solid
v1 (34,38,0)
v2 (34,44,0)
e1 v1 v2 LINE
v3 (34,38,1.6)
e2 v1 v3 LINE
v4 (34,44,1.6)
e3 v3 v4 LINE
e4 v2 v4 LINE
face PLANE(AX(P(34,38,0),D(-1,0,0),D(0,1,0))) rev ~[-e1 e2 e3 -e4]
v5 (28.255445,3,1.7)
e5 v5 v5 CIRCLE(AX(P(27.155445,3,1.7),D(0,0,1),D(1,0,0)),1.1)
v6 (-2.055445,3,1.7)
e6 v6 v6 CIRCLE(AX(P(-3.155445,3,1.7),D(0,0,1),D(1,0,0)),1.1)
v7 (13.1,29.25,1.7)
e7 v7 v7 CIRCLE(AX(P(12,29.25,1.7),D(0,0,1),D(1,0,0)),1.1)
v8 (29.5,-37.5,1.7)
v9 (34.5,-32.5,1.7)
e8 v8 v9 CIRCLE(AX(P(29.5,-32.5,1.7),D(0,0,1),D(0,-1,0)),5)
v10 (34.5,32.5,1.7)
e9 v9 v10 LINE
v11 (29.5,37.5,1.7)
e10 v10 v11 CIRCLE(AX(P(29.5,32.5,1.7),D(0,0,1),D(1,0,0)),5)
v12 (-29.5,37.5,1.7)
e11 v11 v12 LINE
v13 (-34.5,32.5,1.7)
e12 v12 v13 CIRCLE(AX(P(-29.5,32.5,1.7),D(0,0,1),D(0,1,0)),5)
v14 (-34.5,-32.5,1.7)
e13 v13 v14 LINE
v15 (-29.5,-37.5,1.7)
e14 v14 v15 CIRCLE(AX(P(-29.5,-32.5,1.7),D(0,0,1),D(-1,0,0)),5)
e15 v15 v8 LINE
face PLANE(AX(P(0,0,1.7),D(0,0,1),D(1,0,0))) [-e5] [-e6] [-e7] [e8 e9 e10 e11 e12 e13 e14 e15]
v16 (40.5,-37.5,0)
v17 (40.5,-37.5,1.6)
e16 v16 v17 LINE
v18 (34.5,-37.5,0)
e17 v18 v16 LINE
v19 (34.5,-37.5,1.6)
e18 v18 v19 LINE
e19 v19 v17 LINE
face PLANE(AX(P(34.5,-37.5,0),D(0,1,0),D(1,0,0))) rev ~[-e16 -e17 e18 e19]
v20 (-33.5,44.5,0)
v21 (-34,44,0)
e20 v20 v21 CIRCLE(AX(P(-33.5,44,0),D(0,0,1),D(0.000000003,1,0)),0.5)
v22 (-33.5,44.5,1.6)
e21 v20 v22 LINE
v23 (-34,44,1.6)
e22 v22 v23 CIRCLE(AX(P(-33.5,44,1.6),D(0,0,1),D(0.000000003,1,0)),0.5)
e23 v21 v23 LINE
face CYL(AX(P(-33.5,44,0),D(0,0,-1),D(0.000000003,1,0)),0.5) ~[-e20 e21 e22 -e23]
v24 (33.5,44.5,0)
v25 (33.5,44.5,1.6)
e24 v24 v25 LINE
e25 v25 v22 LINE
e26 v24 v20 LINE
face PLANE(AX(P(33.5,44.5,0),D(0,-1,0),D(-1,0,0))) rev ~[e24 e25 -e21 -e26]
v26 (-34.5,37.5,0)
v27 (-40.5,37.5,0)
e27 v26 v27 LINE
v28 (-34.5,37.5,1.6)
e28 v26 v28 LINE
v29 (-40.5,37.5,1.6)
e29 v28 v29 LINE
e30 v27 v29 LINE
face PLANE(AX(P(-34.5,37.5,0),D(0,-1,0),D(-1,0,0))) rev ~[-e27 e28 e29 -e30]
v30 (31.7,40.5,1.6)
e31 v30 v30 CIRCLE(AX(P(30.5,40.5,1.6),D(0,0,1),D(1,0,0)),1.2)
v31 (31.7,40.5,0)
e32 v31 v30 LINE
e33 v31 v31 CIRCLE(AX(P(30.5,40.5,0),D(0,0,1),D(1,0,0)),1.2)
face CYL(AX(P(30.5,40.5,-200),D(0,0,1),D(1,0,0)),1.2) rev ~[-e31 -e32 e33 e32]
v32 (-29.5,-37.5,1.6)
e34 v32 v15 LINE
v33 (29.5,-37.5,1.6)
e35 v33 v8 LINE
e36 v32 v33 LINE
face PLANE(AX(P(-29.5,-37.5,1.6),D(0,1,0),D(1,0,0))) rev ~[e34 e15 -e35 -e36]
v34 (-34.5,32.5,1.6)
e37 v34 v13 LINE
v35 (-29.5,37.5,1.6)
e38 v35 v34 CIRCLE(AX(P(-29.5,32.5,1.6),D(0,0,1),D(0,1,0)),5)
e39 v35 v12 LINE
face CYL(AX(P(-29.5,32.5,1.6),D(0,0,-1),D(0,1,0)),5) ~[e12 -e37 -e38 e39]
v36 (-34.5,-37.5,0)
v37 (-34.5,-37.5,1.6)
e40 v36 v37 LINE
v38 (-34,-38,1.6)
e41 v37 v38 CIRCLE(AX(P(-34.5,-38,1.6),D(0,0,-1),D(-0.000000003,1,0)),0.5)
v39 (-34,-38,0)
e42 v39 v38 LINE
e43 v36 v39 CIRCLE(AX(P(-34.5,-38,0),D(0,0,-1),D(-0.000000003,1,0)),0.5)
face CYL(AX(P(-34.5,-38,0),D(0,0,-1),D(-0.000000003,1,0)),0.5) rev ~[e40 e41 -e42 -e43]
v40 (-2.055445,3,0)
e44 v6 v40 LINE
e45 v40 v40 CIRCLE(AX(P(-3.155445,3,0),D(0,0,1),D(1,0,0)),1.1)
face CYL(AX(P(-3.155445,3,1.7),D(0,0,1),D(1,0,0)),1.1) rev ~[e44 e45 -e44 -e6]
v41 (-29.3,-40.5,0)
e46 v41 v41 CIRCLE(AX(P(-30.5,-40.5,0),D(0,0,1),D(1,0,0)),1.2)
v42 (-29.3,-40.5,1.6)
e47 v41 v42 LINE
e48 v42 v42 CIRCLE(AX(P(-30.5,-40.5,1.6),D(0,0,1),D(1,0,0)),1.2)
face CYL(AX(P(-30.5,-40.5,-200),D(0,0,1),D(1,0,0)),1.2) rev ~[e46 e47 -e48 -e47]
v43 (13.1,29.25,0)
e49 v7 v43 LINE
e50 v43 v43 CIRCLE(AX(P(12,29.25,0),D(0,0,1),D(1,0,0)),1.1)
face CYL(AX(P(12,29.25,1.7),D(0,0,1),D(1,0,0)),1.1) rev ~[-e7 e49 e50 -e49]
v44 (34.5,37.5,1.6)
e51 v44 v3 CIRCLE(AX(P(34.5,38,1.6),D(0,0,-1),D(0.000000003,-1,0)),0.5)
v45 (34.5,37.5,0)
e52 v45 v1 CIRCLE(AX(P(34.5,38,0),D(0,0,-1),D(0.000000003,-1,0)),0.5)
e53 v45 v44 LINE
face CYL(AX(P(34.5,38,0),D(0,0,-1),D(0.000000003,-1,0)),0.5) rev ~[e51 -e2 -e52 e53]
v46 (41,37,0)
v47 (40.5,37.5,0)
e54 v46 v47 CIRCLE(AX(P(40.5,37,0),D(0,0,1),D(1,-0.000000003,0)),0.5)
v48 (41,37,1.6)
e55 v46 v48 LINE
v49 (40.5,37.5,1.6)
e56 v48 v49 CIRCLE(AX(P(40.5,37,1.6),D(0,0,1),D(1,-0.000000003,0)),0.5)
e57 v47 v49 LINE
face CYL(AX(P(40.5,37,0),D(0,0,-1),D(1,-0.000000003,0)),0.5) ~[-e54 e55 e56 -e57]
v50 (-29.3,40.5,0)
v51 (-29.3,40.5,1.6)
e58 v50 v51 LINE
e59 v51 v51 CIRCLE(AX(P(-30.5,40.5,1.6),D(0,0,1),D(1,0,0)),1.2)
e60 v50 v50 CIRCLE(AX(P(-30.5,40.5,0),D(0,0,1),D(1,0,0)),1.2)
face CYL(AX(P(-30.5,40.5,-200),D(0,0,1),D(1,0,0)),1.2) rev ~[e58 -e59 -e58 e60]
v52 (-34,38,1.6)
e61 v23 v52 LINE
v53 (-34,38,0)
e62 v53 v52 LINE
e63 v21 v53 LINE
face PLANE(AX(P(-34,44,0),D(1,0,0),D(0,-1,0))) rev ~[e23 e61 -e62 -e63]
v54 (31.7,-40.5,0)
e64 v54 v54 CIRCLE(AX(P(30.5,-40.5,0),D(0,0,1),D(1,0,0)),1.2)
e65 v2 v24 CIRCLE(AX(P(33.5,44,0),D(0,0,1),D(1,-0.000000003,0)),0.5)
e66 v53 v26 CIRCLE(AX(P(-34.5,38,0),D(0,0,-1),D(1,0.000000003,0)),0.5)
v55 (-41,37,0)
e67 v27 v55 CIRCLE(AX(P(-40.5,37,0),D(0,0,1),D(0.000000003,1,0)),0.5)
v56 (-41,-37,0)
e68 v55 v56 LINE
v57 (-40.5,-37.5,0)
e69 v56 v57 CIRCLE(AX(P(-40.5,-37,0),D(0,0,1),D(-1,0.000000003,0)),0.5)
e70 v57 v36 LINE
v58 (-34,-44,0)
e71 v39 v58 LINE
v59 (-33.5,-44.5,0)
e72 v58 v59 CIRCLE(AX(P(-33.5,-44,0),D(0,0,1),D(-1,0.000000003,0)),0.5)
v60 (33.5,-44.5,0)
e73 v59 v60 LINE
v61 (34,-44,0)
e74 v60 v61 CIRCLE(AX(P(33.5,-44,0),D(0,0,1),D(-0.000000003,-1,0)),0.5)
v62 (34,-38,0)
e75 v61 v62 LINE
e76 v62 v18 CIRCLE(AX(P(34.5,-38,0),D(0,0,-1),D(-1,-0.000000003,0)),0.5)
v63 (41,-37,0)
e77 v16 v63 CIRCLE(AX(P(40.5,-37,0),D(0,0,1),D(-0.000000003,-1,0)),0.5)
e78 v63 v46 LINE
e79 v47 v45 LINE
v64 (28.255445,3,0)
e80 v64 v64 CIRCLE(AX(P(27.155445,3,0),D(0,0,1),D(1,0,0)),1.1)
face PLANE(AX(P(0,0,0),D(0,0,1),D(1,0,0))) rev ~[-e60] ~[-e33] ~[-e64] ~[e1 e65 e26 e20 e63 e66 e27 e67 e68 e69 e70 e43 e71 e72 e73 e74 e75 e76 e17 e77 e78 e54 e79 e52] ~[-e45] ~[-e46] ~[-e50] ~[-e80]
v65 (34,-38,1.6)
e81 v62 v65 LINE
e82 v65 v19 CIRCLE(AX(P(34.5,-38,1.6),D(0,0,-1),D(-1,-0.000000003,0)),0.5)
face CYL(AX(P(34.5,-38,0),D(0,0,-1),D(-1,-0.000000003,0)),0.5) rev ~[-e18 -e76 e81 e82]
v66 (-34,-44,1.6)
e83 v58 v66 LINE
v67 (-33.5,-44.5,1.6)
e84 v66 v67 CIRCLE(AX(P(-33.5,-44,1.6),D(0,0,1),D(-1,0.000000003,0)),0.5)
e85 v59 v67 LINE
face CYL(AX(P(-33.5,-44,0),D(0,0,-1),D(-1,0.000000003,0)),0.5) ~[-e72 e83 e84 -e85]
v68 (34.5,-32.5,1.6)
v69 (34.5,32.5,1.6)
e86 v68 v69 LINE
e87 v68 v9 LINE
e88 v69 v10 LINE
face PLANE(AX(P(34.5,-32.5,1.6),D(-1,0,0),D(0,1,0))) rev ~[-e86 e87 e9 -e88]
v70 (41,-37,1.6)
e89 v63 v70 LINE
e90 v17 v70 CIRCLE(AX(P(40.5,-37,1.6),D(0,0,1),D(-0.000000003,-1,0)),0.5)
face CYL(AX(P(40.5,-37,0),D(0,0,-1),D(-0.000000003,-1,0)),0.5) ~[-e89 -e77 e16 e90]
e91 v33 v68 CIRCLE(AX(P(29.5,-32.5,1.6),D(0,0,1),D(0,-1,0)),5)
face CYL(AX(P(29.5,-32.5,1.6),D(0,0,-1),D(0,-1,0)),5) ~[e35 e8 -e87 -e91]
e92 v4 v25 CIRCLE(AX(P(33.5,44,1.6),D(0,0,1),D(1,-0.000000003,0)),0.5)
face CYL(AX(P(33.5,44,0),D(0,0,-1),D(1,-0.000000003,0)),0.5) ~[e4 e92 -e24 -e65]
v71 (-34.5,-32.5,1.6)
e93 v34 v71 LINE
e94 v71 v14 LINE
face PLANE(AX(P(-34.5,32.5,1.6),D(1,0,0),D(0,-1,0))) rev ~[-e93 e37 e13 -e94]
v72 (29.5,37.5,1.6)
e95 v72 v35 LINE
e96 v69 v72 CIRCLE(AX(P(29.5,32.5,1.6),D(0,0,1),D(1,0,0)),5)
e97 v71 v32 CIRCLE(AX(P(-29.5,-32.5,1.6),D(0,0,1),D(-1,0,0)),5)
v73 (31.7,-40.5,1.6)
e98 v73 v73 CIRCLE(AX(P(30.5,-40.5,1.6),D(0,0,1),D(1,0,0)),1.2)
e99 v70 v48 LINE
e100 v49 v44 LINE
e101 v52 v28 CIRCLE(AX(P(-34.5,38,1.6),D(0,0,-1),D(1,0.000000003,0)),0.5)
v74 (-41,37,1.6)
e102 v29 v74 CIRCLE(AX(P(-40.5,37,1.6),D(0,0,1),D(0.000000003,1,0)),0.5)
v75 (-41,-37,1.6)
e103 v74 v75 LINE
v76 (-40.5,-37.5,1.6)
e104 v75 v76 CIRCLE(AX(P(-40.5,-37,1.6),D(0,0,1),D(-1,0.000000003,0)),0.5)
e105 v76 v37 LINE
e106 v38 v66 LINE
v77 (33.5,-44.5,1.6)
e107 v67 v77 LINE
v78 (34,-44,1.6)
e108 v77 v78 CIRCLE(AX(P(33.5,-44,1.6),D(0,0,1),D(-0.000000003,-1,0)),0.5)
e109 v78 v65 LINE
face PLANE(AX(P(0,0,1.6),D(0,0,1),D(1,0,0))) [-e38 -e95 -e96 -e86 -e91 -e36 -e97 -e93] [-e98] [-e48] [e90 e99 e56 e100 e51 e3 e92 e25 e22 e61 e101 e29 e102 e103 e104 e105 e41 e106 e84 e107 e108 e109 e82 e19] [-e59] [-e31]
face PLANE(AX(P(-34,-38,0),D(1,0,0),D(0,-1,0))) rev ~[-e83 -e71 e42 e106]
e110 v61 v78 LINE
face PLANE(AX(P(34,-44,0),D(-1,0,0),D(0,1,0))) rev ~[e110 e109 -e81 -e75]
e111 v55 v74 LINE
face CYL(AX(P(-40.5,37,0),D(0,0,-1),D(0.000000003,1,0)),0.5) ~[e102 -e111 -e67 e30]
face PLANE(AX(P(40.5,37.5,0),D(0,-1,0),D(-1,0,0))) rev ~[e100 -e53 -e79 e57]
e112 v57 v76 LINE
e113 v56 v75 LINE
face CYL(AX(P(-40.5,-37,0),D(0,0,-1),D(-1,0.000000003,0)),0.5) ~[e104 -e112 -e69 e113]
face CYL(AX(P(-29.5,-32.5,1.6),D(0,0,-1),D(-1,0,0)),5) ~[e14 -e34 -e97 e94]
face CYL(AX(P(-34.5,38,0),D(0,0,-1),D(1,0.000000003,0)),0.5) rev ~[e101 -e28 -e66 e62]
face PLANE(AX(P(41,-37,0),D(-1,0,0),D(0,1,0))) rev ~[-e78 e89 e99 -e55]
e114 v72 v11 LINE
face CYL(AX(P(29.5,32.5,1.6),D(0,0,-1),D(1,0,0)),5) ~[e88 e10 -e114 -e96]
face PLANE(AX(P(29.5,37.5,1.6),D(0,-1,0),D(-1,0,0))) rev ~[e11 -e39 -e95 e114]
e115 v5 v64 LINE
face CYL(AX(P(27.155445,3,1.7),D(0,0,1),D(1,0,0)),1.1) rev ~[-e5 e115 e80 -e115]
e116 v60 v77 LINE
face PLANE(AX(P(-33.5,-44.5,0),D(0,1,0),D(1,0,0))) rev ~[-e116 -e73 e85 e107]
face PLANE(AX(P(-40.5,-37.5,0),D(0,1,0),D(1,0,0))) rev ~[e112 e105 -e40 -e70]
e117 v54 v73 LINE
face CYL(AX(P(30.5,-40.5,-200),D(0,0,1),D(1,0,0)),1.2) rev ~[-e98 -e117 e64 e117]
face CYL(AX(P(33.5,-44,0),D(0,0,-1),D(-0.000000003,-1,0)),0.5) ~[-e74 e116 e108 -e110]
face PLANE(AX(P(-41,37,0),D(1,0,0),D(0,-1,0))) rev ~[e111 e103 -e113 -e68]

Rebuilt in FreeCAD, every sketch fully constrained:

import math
import FreeCAD as App
import Part
import Sketcher
Q = App.Units.Quantity

doc = App.newDocument("Part")
params = doc.addObject("Spreadsheet::Sheet", "Params")
for row, (alias, value) in enumerate([
    ("sketch1_radius", "0.5 mm"),
    ("sketch1_width", "6 mm"),
    ("sketch1_width2", "67 mm"),
    ("sketch1_height", "74 mm"),
    ("pad1_length", "1.6 mm"),
    ("sketch2_radius", "5 mm"),
    ("sketch2_width", "59 mm"),
    ("sketch2_height", "65 mm"),
    ("pad2_length", "0.1 mm"),
    ("sketch3_diameter", "2.4 mm"),
    ("hole_diameter", "2.4 mm"),
    ("hole_depth", "200 mm"),
    ("sketch4_diameter", "2.2 mm"),
    ("pocket1_length", "1.7 mm"),
], start=1):
    params.set(f"A{row}", alias)
    params.set(f"B{row}", "=" + value)
    params.setAlias(f"B{row}", alias)

body = doc.addObject("PartDesign::Body", "Body")

# Sketch on XY plane
sketch1 = body.newObject("Sketcher::SketchObject", "Sketch")
sketch1.AttachmentSupport = (doc.getObject("XY_Plane"), [""])
sketch1.MapMode = "FlatFace"
sketch1.addGeometry([
    Part.LineSegment(App.Vector(-34, 44, 0), App.Vector(-34, 38, 0)),  # 0
    Part.ArcOfCircle(Part.Circle(App.Vector(-34.5, 38, 0), App.Vector(0, 0, 1), 0.5), math.radians(-90), math.radians(0)),  # 1
    Part.LineSegment(App.Vector(-34.5, 37.5, 0), App.Vector(-40.5, 37.5, 0)),  # 2
    Part.ArcOfCircle(Part.Circle(App.Vector(-40.5, 37, 0), App.Vector(0, 0, 1), 0.5), math.radians(90), math.radians(180)),  # 3
    Part.LineSegment(App.Vector(-41, 37, 0), App.Vector(-41, -37, 0)),  # 4
    Part.ArcOfCircle(Part.Circle(App.Vector(-40.5, -37, 0), App.Vector(0, 0, 1), 0.5), math.radians(180), math.radians(270)),  # 5
    Part.LineSegment(App.Vector(-40.5, -37.5, 0), App.Vector(-34.5, -37.5, 0)),  # 6
    Part.ArcOfCircle(Part.Circle(App.Vector(-34.5, -38, 0), App.Vector(0, 0, 1), 0.5), math.radians(0), math.radians(90)),  # 7
    Part.LineSegment(App.Vector(-34, -38, 0), App.Vector(-34, -44, 0)),  # 8
    Part.ArcOfCircle(Part.Circle(App.Vector(-33.5, -44, 0), App.Vector(0, 0, 1), 0.5), math.radians(180), math.radians(270)),  # 9
    Part.LineSegment(App.Vector(-33.5, -44.5, 0), App.Vector(33.5, -44.5, 0)),  # 10
    Part.ArcOfCircle(Part.Circle(App.Vector(33.5, -44, 0), App.Vector(0, 0, 1), 0.5), math.radians(-90), math.radians(0)),  # 11
    Part.LineSegment(App.Vector(34, -44, 0), App.Vector(34, -38, 0)),  # 12
    Part.ArcOfCircle(Part.Circle(App.Vector(34.5, -38, 0), App.Vector(0, 0, 1), 0.5), math.radians(90), math.radians(180)),  # 13
    Part.LineSegment(App.Vector(34.5, -37.5, 0), App.Vector(40.5, -37.5, 0)),  # 14
    Part.ArcOfCircle(Part.Circle(App.Vector(40.5, -37, 0), App.Vector(0, 0, 1), 0.5), math.radians(-90), math.radians(0)),  # 15
    Part.LineSegment(App.Vector(41, -37, 0), App.Vector(41, 37, 0)),  # 16
    Part.ArcOfCircle(Part.Circle(App.Vector(40.5, 37, 0), App.Vector(0, 0, 1), 0.5), math.radians(0), math.radians(90)),  # 17
    Part.LineSegment(App.Vector(40.5, 37.5, 0), App.Vector(34.5, 37.5, 0)),  # 18
    Part.ArcOfCircle(Part.Circle(App.Vector(34.5, 38, 0), App.Vector(0, 0, 1), 0.5), math.radians(180), math.radians(270)),  # 19
    Part.LineSegment(App.Vector(34, 38, 0), App.Vector(34, 44, 0)),  # 20
    Part.ArcOfCircle(Part.Circle(App.Vector(33.5, 44, 0), App.Vector(0, 0, 1), 0.5), math.radians(0), math.radians(90)),  # 21
    Part.LineSegment(App.Vector(33.5, 44.5, 0), App.Vector(-33.5, 44.5, 0)),  # 22
    Part.ArcOfCircle(Part.Circle(App.Vector(-33.5, 44, 0), App.Vector(0, 0, 1), 0.5), math.radians(90), math.radians(180)),  # 23
], False)
sketch1.addConstraint([
    Sketcher.Constraint("Tangent", 0, 2, 1, 2),
    Sketcher.Constraint("Tangent", 1, 1, 2, 1),
    Sketcher.Constraint("Tangent", 2, 2, 3, 1),
    Sketcher.Constraint("Tangent", 3, 2, 4, 1),
    Sketcher.Constraint("Tangent", 4, 2, 5, 1),
    Sketcher.Constraint("Tangent", 5, 2, 6, 1),
    Sketcher.Constraint("Tangent", 6, 2, 7, 2),
    Sketcher.Constraint("Tangent", 7, 1, 8, 1),
    Sketcher.Constraint("Tangent", 8, 2, 9, 1),
    Sketcher.Constraint("Tangent", 9, 2, 10, 1),
    Sketcher.Constraint("Tangent", 10, 2, 11, 1),
    Sketcher.Constraint("Tangent", 11, 2, 12, 1),
    Sketcher.Constraint("Tangent", 12, 2, 13, 2),
    Sketcher.Constraint("Tangent", 13, 1, 14, 1),
    Sketcher.Constraint("Tangent", 14, 2, 15, 1),
    Sketcher.Constraint("Tangent", 15, 2, 16, 1),
    Sketcher.Constraint("Tangent", 16, 2, 17, 1),
    Sketcher.Constraint("Tangent", 17, 2, 18, 1),
    Sketcher.Constraint("Tangent", 18, 2, 19, 2),
    Sketcher.Constraint("Tangent", 19, 1, 20, 1),
    Sketcher.Constraint("Tangent", 20, 2, 21, 1),
    Sketcher.Constraint("Tangent", 21, 2, 22, 1),
    Sketcher.Constraint("Tangent", 22, 2, 23, 1),
    Sketcher.Constraint("Tangent", 23, 2, 0, 1),
    Sketcher.Constraint("Vertical", 0),
    Sketcher.Constraint("Horizontal", 2),
    Sketcher.Constraint("Vertical", 4),
    Sketcher.Constraint("Horizontal", 6),
    Sketcher.Constraint("Vertical", 8),
    Sketcher.Constraint("Horizontal", 10),
    Sketcher.Constraint("Vertical", 12),
    Sketcher.Constraint("Horizontal", 14),
    Sketcher.Constraint("Vertical", 16),
    Sketcher.Constraint("Horizontal", 18),
    Sketcher.Constraint("Vertical", 20),
    Sketcher.Constraint("Horizontal", 22),
    Sketcher.Constraint("Equal", 1, 3),
    Sketcher.Constraint("Equal", 3, 5),
    Sketcher.Constraint("Equal", 5, 7),
    Sketcher.Constraint("Equal", 7, 9),
    Sketcher.Constraint("Equal", 9, 11),
    Sketcher.Constraint("Equal", 11, 13),
    Sketcher.Constraint("Equal", 13, 15),
    Sketcher.Constraint("Equal", 15, 17),
    Sketcher.Constraint("Equal", 17, 19),
    Sketcher.Constraint("Equal", 19, 21),
    Sketcher.Constraint("Equal", 21, 23),
    Sketcher.Constraint("Symmetric", 1, 3, 13, 3, -1, 1),
    Sketcher.Constraint("Symmetric", 5, 3, 17, 3, -1, 1),
    Sketcher.Constraint("Symmetric", 9, 3, 21, 3, -1, 1),
    Sketcher.Constraint("Symmetric", 7, 3, 13, 3, -2),
    Sketcher.Constraint("Equal", 18, 0),
    Sketcher.Constraint("Radius", 1, Q("0.5 mm")),
    Sketcher.Constraint("DistanceX", 2, 2, 2, 1, Q("6 mm")),
    Sketcher.Constraint("DistanceX", 10, 1, 10, 2, Q("67 mm")),
    Sketcher.Constraint("DistanceY", 4, 2, 4, 1, Q("74 mm")),
])
sketch1.setExpression("Constraints[52]", "Params.sketch1_radius")
sketch1.setExpression("Constraints[53]", "Params.sketch1_width")
sketch1.setExpression("Constraints[54]", "Params.sketch1_width2")
sketch1.setExpression("Constraints[55]", "Params.sketch1_height")
pad1 = body.newObject("PartDesign::Pad", "Pad")
pad1.Profile = sketch1
pad1.setExpression("Length", "Params.pad1_length")

# Sketch on XY plane
sketch2 = body.newObject("Sketcher::SketchObject", "Sketch001")
sketch2.AttachmentSupport = (doc.getObject("XY_Plane"), [""])
sketch2.MapMode = "FlatFace"
sketch2.AttachmentOffset = App.Placement(App.Vector(0, 0, 1.6), App.Rotation())
sketch2.addGeometry([
    Part.LineSegment(App.Vector(-30, -38, 0), App.Vector(30, -38, 0)),  # 0
    Part.ArcOfCircle(Part.Circle(App.Vector(30, -32, 0), App.Vector(0, 0, 1), 5), math.radians(-90), math.radians(0)),  # 1
    Part.LineSegment(App.Vector(34, -32, 0), App.Vector(34, 32, 0)),  # 2
    Part.ArcOfCircle(Part.Circle(App.Vector(30, 32, 0), App.Vector(0, 0, 1), 5), math.radians(0), math.radians(90)),  # 3
    Part.LineSegment(App.Vector(30, 38, 0), App.Vector(-30, 38, 0)),  # 4
    Part.ArcOfCircle(Part.Circle(App.Vector(-30, 32, 0), App.Vector(0, 0, 1), 5), math.radians(90), math.radians(180)),  # 5
    Part.LineSegment(App.Vector(-34, 32, 0), App.Vector(-34, -32, 0)),  # 6
    Part.ArcOfCircle(Part.Circle(App.Vector(-30, -32, 0), App.Vector(0, 0, 1), 5), math.radians(180), math.radians(270)),  # 7
], False)
sketch2.addConstraint([
    Sketcher.Constraint("Tangent", 0, 2, 1, 1),
    Sketcher.Constraint("Tangent", 1, 2, 2, 1),
    Sketcher.Constraint("Tangent", 2, 2, 3, 1),
    Sketcher.Constraint("Tangent", 3, 2, 4, 1),
    Sketcher.Constraint("Tangent", 4, 2, 5, 1),
    Sketcher.Constraint("Tangent", 5, 2, 6, 1),
    Sketcher.Constraint("Tangent", 6, 2, 7, 1),
    Sketcher.Constraint("Tangent", 7, 2, 0, 1),
    Sketcher.Constraint("Horizontal", 0),
    Sketcher.Constraint("Vertical", 2),
    Sketcher.Constraint("Horizontal", 4),
    Sketcher.Constraint("Vertical", 6),
    Sketcher.Constraint("Equal", 1, 3),
    Sketcher.Constraint("Equal", 3, 5),
    Sketcher.Constraint("Equal", 5, 7),
    Sketcher.Constraint("Symmetric", 1, 3, 5, 3, -1, 1),
    Sketcher.Constraint("Radius", 1, Q("5 mm")),
    Sketcher.Constraint("DistanceX", 0, 1, 0, 2, Q("59 mm")),
    Sketcher.Constraint("DistanceY", 2, 1, 2, 2, Q("65 mm")),
])
sketch2.setExpression("Constraints[16]", "Params.sketch2_radius")
sketch2.setExpression("Constraints[17]", "Params.sketch2_width")
sketch2.setExpression("Constraints[18]", "Params.sketch2_height")
pad2 = body.newObject("PartDesign::Pad", "Pad001")
pad2.Profile = sketch2
pad2.setExpression("Length", "Params.pad2_length")

# Sketch on XY plane
sketch3 = body.newObject("Sketcher::SketchObject", "Sketch002")
sketch3.AttachmentSupport = (doc.getObject("XY_Plane"), [""])
sketch3.MapMode = "FlatFace"
sketch3.addGeometry([
    Part.Circle(App.Vector(30.5, 40.5, 0), App.Vector(0, 0, 1), 1.2),
    Part.Circle(App.Vector(-30.5, 40.5, 0), App.Vector(0, 0, 1), 1.2),
    Part.Circle(App.Vector(30.5, -40.5, 0), App.Vector(0, 0, 1), 1.2),
    Part.Circle(App.Vector(-30.5, -40.5, 0), App.Vector(0, 0, 1), 1.2),
], False)
sketch3.addConstraint([
    Sketcher.Constraint("Equal", 0, 1),
    Sketcher.Constraint("Equal", 1, 2),
    Sketcher.Constraint("Equal", 2, 3),
    Sketcher.Constraint("Symmetric", 1, 3, 2, 3, -1, 1),
    Sketcher.Constraint("Symmetric", 0, 3, 3, 3, -1, 1),
    Sketcher.Constraint("Symmetric", 0, 3, 1, 3, -2),
    Sketcher.Constraint("Diameter", 0, Q("2.4 mm")),
    Sketcher.Constraint("DistanceX", 1, 3, 0, 3, Q("61 mm")),
    Sketcher.Constraint("DistanceY", 2, 3, 0, 3, Q("81 mm")),
])
sketch3.setExpression("Constraints[6]", "Params.sketch3_diameter")
doc.recompute()
hole = body.newObject("PartDesign::Hole", "Hole")
hole.Profile = sketch3
hole.ThreadType = "None"
hole.setExpression("Diameter", "Params.hole_diameter")
hole.DepthType = "Dimension"
hole.setExpression("Depth", "Params.hole_depth")
hole.DrillPoint = "Angled"
hole.DrillPointAngle = 118
hole.Reversed = True

# Sketch on XY plane
sketch4 = body.newObject("Sketcher::SketchObject", "Sketch003")
sketch4.AttachmentSupport = (doc.getObject("XY_Plane"), [""])
sketch4.MapMode = "FlatFace"
sketch4.AttachmentOffset = App.Placement(App.Vector(0, 0, 1.7), App.Rotation())
sketch4.addGeometry([
    Part.Circle(App.Vector(27.2, 3, 0), App.Vector(0, 0, 1), 1.1),
    Part.Circle(App.Vector(12, 29.2, 0), App.Vector(0, 0, 1), 1.1),
    Part.Circle(App.Vector(-3.2, 3, 0), App.Vector(0, 0, 1), 1.1),
], False)
sketch4.addConstraint([
    Sketcher.Constraint("Equal", 0, 1),
    Sketcher.Constraint("Equal", 1, 2),
    Sketcher.Constraint("Horizontal", 0, 3, 2, 3),
    Sketcher.Constraint("Diameter", 0, Q("2.2 mm")),
    Sketcher.Constraint("DistanceY", -1, 1, 0, 3, Q("3 mm")),
    Sketcher.Constraint("DistanceX", -1, 1, 1, 3, Q("12 mm")),
    Sketcher.Constraint("DistanceY", -1, 1, 1, 3, Q("29.25 mm")),
    Sketcher.Constraint("DistanceX", 2, 3, 0, 3, Q("30.310889 mm")),
    Sketcher.Constraint("DistanceX", -1, 1, 0, 3, Q("27.155445 mm")),
])
sketch4.setExpression("Constraints[3]", "Params.sketch4_diameter")
pocket1 = body.newObject("PartDesign::Pocket", "Pocket")
pocket1.Profile = sketch4
pocket1.setExpression("Length", "Params.pocket1_length")

doc.recompute()
